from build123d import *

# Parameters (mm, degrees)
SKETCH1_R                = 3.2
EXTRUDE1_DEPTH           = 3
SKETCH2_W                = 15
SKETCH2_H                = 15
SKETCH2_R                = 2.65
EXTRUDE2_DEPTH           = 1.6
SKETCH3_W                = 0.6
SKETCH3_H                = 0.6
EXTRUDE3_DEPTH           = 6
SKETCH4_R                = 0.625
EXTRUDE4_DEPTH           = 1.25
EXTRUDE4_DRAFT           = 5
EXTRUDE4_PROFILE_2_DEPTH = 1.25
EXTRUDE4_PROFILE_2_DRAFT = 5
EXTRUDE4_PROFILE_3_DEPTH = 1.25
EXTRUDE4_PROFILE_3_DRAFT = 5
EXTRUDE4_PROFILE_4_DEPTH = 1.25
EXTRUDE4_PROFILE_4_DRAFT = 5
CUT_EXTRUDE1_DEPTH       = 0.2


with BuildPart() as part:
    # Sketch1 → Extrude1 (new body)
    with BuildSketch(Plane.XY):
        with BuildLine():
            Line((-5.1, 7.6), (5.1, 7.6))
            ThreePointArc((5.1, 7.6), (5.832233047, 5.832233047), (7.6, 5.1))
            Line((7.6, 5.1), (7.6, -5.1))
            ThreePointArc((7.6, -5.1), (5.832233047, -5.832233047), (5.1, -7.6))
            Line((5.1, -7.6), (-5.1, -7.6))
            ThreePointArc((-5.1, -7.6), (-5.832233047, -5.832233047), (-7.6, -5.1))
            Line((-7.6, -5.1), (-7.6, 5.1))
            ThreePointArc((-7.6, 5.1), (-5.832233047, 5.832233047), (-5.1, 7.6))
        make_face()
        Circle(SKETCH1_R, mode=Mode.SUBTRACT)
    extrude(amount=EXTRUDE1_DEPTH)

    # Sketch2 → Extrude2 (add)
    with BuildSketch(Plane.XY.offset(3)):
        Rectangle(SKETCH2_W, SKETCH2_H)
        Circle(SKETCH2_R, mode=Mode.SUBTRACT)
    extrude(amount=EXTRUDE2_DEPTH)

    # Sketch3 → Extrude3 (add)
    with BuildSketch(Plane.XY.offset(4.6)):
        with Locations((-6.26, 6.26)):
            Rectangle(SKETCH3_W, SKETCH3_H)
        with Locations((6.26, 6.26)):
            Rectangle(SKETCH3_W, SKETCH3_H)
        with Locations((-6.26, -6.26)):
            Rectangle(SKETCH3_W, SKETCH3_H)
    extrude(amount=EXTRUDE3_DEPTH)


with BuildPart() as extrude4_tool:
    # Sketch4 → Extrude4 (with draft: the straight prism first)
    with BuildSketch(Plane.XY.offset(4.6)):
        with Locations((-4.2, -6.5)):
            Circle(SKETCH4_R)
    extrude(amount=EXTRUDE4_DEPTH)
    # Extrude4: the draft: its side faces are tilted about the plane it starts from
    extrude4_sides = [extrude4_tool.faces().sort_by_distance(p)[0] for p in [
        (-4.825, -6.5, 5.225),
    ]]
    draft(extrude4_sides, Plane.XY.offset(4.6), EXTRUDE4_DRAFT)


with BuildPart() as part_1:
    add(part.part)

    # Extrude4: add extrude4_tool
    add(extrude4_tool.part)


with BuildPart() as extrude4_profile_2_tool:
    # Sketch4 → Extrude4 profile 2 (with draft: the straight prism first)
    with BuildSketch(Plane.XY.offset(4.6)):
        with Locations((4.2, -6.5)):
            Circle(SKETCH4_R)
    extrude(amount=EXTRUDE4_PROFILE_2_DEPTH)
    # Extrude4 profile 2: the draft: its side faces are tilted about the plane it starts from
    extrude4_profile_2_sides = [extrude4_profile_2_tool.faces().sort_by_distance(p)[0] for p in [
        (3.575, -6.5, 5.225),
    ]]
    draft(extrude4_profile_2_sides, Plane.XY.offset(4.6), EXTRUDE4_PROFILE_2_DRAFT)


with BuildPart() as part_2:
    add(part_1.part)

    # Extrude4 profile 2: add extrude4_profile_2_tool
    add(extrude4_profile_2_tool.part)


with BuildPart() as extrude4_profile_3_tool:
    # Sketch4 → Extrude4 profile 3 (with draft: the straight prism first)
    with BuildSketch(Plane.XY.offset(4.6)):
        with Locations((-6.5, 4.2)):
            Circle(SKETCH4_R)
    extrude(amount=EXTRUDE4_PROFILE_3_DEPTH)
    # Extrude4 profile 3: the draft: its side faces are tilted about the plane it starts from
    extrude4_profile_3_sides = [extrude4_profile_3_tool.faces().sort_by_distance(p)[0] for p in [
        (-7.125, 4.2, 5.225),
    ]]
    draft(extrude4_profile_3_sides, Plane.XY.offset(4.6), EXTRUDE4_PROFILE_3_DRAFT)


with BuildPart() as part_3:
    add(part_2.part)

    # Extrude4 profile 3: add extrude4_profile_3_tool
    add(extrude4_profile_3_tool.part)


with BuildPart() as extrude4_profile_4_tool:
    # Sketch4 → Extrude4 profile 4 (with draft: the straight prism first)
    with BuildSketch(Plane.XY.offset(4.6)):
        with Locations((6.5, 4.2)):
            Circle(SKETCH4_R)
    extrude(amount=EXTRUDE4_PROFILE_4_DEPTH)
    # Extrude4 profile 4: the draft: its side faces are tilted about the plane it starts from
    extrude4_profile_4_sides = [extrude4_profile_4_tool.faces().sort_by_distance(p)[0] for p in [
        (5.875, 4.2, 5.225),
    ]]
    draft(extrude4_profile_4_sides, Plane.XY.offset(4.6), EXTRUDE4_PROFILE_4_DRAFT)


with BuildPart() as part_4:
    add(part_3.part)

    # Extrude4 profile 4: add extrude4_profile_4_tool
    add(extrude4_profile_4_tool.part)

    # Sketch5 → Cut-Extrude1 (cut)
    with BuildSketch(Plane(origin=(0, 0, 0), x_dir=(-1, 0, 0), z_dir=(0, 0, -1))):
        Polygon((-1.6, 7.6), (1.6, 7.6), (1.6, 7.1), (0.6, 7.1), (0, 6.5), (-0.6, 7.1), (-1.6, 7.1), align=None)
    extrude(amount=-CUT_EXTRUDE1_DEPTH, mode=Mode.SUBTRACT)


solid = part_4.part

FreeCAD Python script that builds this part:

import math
import FreeCAD as App
import Part
import Sketcher


def faces_at(feature, points):
    """Names of the faces that lie closest to the given points."""
    faces = feature.Shape.Faces
    near = lambda p: min(range(len(faces)), key=lambda i: faces[i].distToShape(Part.Vertex(*p))[0])
    return sorted({f"Face{near(p) + 1}" for p in points})

doc = App.newDocument("Part")
body = doc.addObject("PartDesign::Body", "Body")

sketch1 = body.newObject("Sketcher::SketchObject", "Sketch")
sketch1.AttachmentSupport = (doc.getObject("XY_Plane"), [""])
sketch1.MapMode = "FlatFace"
sketch1.addGeometry([
    Part.LineSegment(App.Vector(5.1, 7.6, 0), App.Vector(-5.1, 7.6, 0)),
    Part.ArcOfCircle(Part.Circle(App.Vector(-7.6, 7.6, 0), App.Vector(0, 0, 1), 2.5), math.radians(-90), math.radians(0)),
    Part.LineSegment(App.Vector(-7.6, 5.1, 0), App.Vector(-7.6, -5.1, 0)),
    Part.ArcOfCircle(Part.Circle(App.Vector(-7.6, -7.6, 0), App.Vector(0, 0, 1), 2.5), math.radians(0), math.radians(90)),
    Part.LineSegment(App.Vector(-5.1, -7.6, 0), App.Vector(5.1, -7.6, 0)),
    Part.ArcOfCircle(Part.Circle(App.Vector(7.6, -7.6, 0), App.Vector(0, 0, 1), 2.5), math.radians(90), math.radians(180)),
    Part.LineSegment(App.Vector(7.6, -5.1, 0), App.Vector(7.6, 5.1, 0)),
    Part.ArcOfCircle(Part.Circle(App.Vector(7.6, 7.6, 0), App.Vector(0, 0, 1), 2.5), math.radians(180), math.radians(270)),
    Part.Circle(App.Vector(0, 0, 0), App.Vector(0, 0, 1), 3.2),
], False)
sketch1.addConstraint([
    Sketcher.Constraint("Coincident", 0, 2, 1, 2),
    Sketcher.Constraint("Coincident", 1, 1, 2, 1),
    Sketcher.Constraint("Coincident", 2, 2, 3, 2),
    Sketcher.Constraint("Coincident", 3, 1, 4, 1),
    Sketcher.Constraint("Coincident", 4, 2, 5, 2),
    Sketcher.Constraint("Coincident", 5, 1, 6, 1),
    Sketcher.Constraint("Coincident", 6, 2, 7, 2),
    Sketcher.Constraint("Coincident", 7, 1, 0, 1),
    Sketcher.Constraint("Horizontal", 0),
    Sketcher.Constraint("Vertical", 2),
    Sketcher.Constraint("Horizontal", 4),
    Sketcher.Constraint("Vertical", 6),
    Sketcher.Constraint("Coincident", 8, 3, -1, 1),
    Sketcher.Constraint("Equal", 1, 3),
    Sketcher.Constraint("Equal", 3, 5),
    Sketcher.Constraint("Equal", 5, 7),
    Sketcher.Constraint("Symmetric", 1, 3, 5, 3, -1, 1),
    Sketcher.Constraint("Symmetric", 3, 3, 7, 3, -1, 1),
    Sketcher.Constraint("Symmetric", 3, 3, 5, 3, -2),
    Sketcher.Constraint("Horizontal", 7, 3, 0, 2),
    Sketcher.Constraint("Horizontal", 5, 3, 3, 1),
    Sketcher.Constraint("Vertical", 3, 3, 1, 1),
    Sketcher.Constraint("Vertical", 7, 3, 5, 1),
    Sketcher.Constraint("Equal", 4, 2),
    Sketcher.Constraint("Diameter", 8, 6.4),
    Sketcher.Constraint("Radius", 1, 2.5),
    Sketcher.Constraint("DistanceX", 0, 2, 0, 1, 10.2),
])
pad1 = body.newObject("PartDesign::Pad", "Pad")
pad1.Profile = sketch1
pad1.Length = 3

sketch2 = body.newObject("Sketcher::SketchObject", "Sketch001")
sketch2.AttachmentSupport = (doc.getObject("XY_Plane"), [""])
sketch2.MapMode = "FlatFace"
sketch2.AttachmentOffset = App.Placement(App.Vector(0, 0, 3), App.Rotation())
sketch2.addGeometry([
    Part.LineSegment(App.Vector(-7.5, 7.5, 0), App.Vector(-7.5, -7.5, 0)),
    Part.LineSegment(App.Vector(-7.5, -7.5, 0), App.Vector(7.5, -7.5, 0)),
    Part.LineSegment(App.Vector(7.5, -7.5, 0), App.Vector(7.5, 7.5, 0)),
    Part.LineSegment(App.Vector(7.5, 7.5, 0), App.Vector(-7.5, 7.5, 0)),
    Part.Circle(App.Vector(0, 0, 0), App.Vector(0, 0, 1), 2.6),
], False)
sketch2.addConstraint([
    Sketcher.Constraint("Coincident", 0, 2, 1, 1),
    Sketcher.Constraint("Coincident", 1, 2, 2, 1),
    Sketcher.Constraint("Coincident", 2, 2, 3, 1),
    Sketcher.Constraint("Coincident", 3, 2, 0, 1),
    Sketcher.Constraint("Vertical", 0),
    Sketcher.Constraint("Horizontal", 1),
    Sketcher.Constraint("Vertical", 2),
    Sketcher.Constraint("Horizontal", 3),
    Sketcher.Constraint("Coincident", 4, 3, -1, 1),
    Sketcher.Constraint("Symmetric", 0, 2, 2, 2, -1, 1),
    Sketcher.Constraint("Equal", 3, 0),
    Sketcher.Constraint("Diameter", 4, 5.3),
    Sketcher.Constraint("DistanceX", 1, 1, 1, 2, 15.0),
])
pad2 = body.newObject("PartDesign::Pad", "Pad001")
pad2.Profile = sketch2
pad2.Length = 1.6

sketch3 = body.newObject("Sketcher::SketchObject", "Sketch002")
sketch3.AttachmentSupport = (doc.getObject("XY_Plane"), [""])
sketch3.MapMode = "FlatFace"
sketch3.AttachmentOffset = App.Placement(App.Vector(0, 0, 4.6), App.Rotation())
sketch3.addGeometry([
    Part.LineSegment(App.Vector(-6.6, 6.6, 0), App.Vector(-6.6, 6, 0)),
    Part.LineSegment(App.Vector(-6.6, 6, 0), App.Vector(-6, 6, 0)),
    Part.LineSegment(App.Vector(-6, 6, 0), App.Vector(-6, 6.6, 0)),
    Part.LineSegment(App.Vector(-6, 6.6, 0), App.Vector(-6.6, 6.6, 0)),
    Part.LineSegment(App.Vector(6, 6.6, 0), App.Vector(6, 6, 0)),
    Part.LineSegment(App.Vector(6, 6, 0), App.Vector(6.6, 6, 0)),
    Part.LineSegment(App.Vector(6.6, 6, 0), App.Vector(6.6, 6.6, 0)),
    Part.LineSegment(App.Vector(6.6, 6.6, 0), App.Vector(6, 6.6, 0)),
    Part.LineSegment(App.Vector(-6.6, -6, 0), App.Vector(-6.6, -6.6, 0)),
    Part.LineSegment(App.Vector(-6.6, -6.6, 0), App.Vector(-6, -6.6, 0)),
    Part.LineSegment(App.Vector(-6, -6.6, 0), App.Vector(-6, -6, 0)),
    Part.LineSegment(App.Vector(-6, -6, 0), App.Vector(-6.6, -6, 0)),
], False)
sketch3.addConstraint([
    Sketcher.Constraint("Coincident", 0, 2, 1, 1),
    Sketcher.Constraint("Coincident", 1, 2, 2, 1),
    Sketcher.Constraint("Coincident", 2, 2, 3, 1),
    Sketcher.Constraint("Coincident", 3, 2, 0, 1),
    Sketcher.Constraint("Coincident", 4, 2, 5, 1),
    Sketcher.Constraint("Coincident", 5, 2, 6, 1),
    Sketcher.Constraint("Coincident", 6, 2, 7, 1),
    Sketcher.Constraint("Coincident", 7, 2, 4, 1),
    Sketcher.Constraint("Coincident", 8, 2, 9, 1),
    Sketcher.Constraint("Coincident", 9, 2, 10, 1),
    Sketcher.Constraint("Coincident", 10, 2, 11, 1),
    Sketcher.Constraint("Coincident", 11, 2, 8, 1),
    Sketcher.Constraint("Vertical", 0),
    Sketcher.Constraint("Horizontal", 1),
    Sketcher.Constraint("Vertical", 2),
    Sketcher.Constraint("Horizontal", 3),
    Sketcher.Constraint("Vertical", 4),
    Sketcher.Constraint("Horizontal", 5),
    Sketcher.Constraint("Vertical", 6),
    Sketcher.Constraint("Horizontal", 7),
    Sketcher.Constraint("Vertical", 8),
    Sketcher.Constraint("Horizontal", 9),
    Sketcher.Constraint("Vertical", 10),
    Sketcher.Constraint("Horizontal", 11),
    Sketcher.Constraint("Symmetric", 6, 2, 8, 2, -1, 1),
    Sketcher.Constraint("Symmetric", 4, 2, 10, 2, -1, 1),
    Sketcher.Constraint("Symmetric", 1, 2, 4, 2, -2),
    Sketcher.Constraint("Symmetric", 3, 2, 6, 2, -2),
    Sketcher.Constraint("Equal", 11, 0),
    Sketcher.Constraint("DistanceX", 1, 1, 1, 2, 0.6),
    Sketcher.Constraint("DistanceX", 0, 2, -1, 1, 6.56),
    Sketcher.Constraint("DistanceY", -1, 1, 0, 2, 5.96),
])
pad3 = body.newObject("PartDesign::Pad", "Pad002")
pad3.Profile = sketch3
pad3.Length = 6
body2 = doc.addObject("PartDesign::Body", "Body001")

sketch4 = body2.newObject("Sketcher::SketchObject", "Sketch003")
sketch4.AttachmentSupport = (doc.getObject("XY_Plane001"), [""])
sketch4.MapMode = "FlatFace"
sketch4.AttachmentOffset = App.Placement(App.Vector(0, 0, 4.6), App.Rotation())
sketch4.addGeometry(Part.Circle(App.Vector(-4.2, -6.5, 0), App.Vector(0, 0, 1), 0.6), False)
sketch4.addConstraint([
    Sketcher.Constraint("Diameter", 0, 1.25),
    Sketcher.Constraint("DistanceX", 0, 3, -1, 1, 4.2),
    Sketcher.Constraint("DistanceY", 0, 3, -1, 1, 6.5),
])
pad4 = body2.newObject("PartDesign::Pad", "Pad003")
pad4.Profile = sketch4
pad4.Length = 1.25
doc.recompute()

datumplane = body2.newObject("PartDesign::Plane", "DatumPlane")
datumplane.AttachmentSupport = (doc.getObject("XY_Plane001"), [""])
datumplane.MapMode = "FlatFace"
datumplane.AttachmentOffset = App.Placement(App.Vector(0, 0, 4.6), App.Rotation())
draft = body2.newObject("PartDesign::Draft", "Draft")
draft.Base = (pad4, faces_at(pad4, [(-4.825, -6.5, 5.225)]))
draft.NeutralPlane = (datumplane, [""])
draft.Angle = 5
draft.Reversed = False
doc.recompute()

boolean = body.newObject("PartDesign::Boolean", "Boolean")
boolean.Type = "Fuse"
boolean.addObjects([body2])
body3 = doc.addObject("PartDesign::Body", "Body002")

sketch5 = body3.newObject("Sketcher::SketchObject", "Sketch004")
sketch5.AttachmentSupport = (doc.getObject("XY_Plane002"), [""])
sketch5.MapMode = "FlatFace"
sketch5.AttachmentOffset = App.Placement(App.Vector(0, 0, 4.6), App.Rotation())
sketch5.addGeometry(Part.Circle(App.Vector(4.2, -6.5, 0), App.Vector(0, 0, 1), 0.6), False)
sketch5.addConstraint([
    Sketcher.Constraint("Diameter", 0, 1.25),
    Sketcher.Constraint("DistanceX", -1, 1, 0, 3, 4.2),
    Sketcher.Constraint("DistanceY", 0, 3, -1, 1, 6.5),
])
pad5 = body3.newObject("PartDesign::Pad", "Pad004")
pad5.Profile = sketch5
pad5.Length = 1.25
doc.recompute()

datumplane2 = body3.newObject("PartDesign::Plane", "DatumPlane001")
datumplane2.AttachmentSupport = (doc.getObject("XY_Plane002"), [""])
datumplane2.MapMode = "FlatFace"
datumplane2.AttachmentOffset = App.Placement(App.Vector(0, 0, 4.6), App.Rotation())
draft2 = body3.newObject("PartDesign::Draft", "Draft001")
draft2.Base = (pad5, faces_at(pad5, [(3.575, -6.5, 5.225)]))
draft2.NeutralPlane = (datumplane2, [""])
draft2.Angle = 5
draft2.Reversed = False
doc.recompute()

boolean2 = body.newObject("PartDesign::Boolean", "Boolean001")
boolean2.Type = "Fuse"
boolean2.addObjects([body3])
body4 = doc.addObject("PartDesign::Body", "Body003")

sketch6 = body4.newObject("Sketcher::SketchObject", "Sketch005")
sketch6.AttachmentSupport = (doc.getObject("XY_Plane003"), [""])
sketch6.MapMode = "FlatFace"
sketch6.AttachmentOffset = App.Placement(App.Vector(0, 0, 4.6), App.Rotation())
sketch6.addGeometry(Part.Circle(App.Vector(-6.5, 4.2, 0), App.Vector(0, 0, 1), 0.6), False)
sketch6.addConstraint([
    Sketcher.Constraint("Diameter", 0, 1.25),
    Sketcher.Constraint("DistanceX", 0, 3, -1, 1, 6.5),
    Sketcher.Constraint("DistanceY", -1, 1, 0, 3, 4.2),
])
pad6 = body4.newObject("PartDesign::Pad", "Pad005")
pad6.Profile = sketch6
pad6.Length = 1.25
doc.recompute()

datumplane3 = body4.newObject("PartDesign::Plane", "DatumPlane002")
datumplane3.AttachmentSupport = (doc.getObject("XY_Plane003"), [""])
datumplane3.MapMode = "FlatFace"
datumplane3.AttachmentOffset = App.Placement(App.Vector(0, 0, 4.6), App.Rotation())
draft3 = body4.newObject("PartDesign::Draft", "Draft002")
draft3.Base = (pad6, faces_at(pad6, [(-7.125, 4.2, 5.225)]))
draft3.NeutralPlane = (datumplane3, [""])
draft3.Angle = 5
draft3.Reversed = False
doc.recompute()

boolean3 = body.newObject("PartDesign::Boolean", "Boolean002")
boolean3.Type = "Fuse"
boolean3.addObjects([body4])
body5 = doc.addObject("PartDesign::Body", "Body004")

sketch7 = body5.newObject("Sketcher::SketchObject", "Sketch006")
sketch7.AttachmentSupport = (doc.getObject("XY_Plane004"), [""])
sketch7.MapMode = "FlatFace"
sketch7.AttachmentOffset = App.Placement(App.Vector(0, 0, 4.6), App.Rotation())
sketch7.addGeometry(Part.Circle(App.Vector(6.5, 4.2, 0), App.Vector(0, 0, 1), 0.6), False)
sketch7.addConstraint([
    Sketcher.Constraint("Diameter", 0, 1.25),
    Sketcher.Constraint("DistanceX", -1, 1, 0, 3, 6.5),
    Sketcher.Constraint("DistanceY", -1, 1, 0, 3, 4.2),
])
pad7 = body5.newObject("PartDesign::Pad", "Pad006")
pad7.Profile = sketch7
pad7.Length = 1.25
doc.recompute()

datumplane4 = body5.newObject("PartDesign::Plane", "DatumPlane003")
datumplane4.AttachmentSupport = (doc.getObject("XY_Plane004"), [""])
datumplane4.MapMode = "FlatFace"
datumplane4.AttachmentOffset = App.Placement(App.Vector(0, 0, 4.6), App.Rotation())
draft4 = body5.newObject("PartDesign::Draft", "Draft003")
draft4.Base = (pad7, faces_at(pad7, [(5.875, 4.2, 5.225)]))
draft4.NeutralPlane = (datumplane4, [""])
draft4.Angle = 5
draft4.Reversed = False
doc.recompute()

boolean4 = body.newObject("PartDesign::Boolean", "Boolean003")
boolean4.Type = "Fuse"
boolean4.addObjects([body5])

sketch8 = body.newObject("Sketcher::SketchObject", "Sketch007")
sketch8.AttachmentSupport = (doc.getObject("XY_Plane"), [""])
sketch8.MapMode = "FlatFace"
sketch8.addGeometry([
    Part.LineSegment(App.Vector(-1.6, 7.6, 0), App.Vector(1.6, 7.6, 0)),
    Part.LineSegment(App.Vector(1.6, 7.6, 0), App.Vector(1.6, 7.1, 0)),
    Part.LineSegment(App.Vector(1.6, 7.1, 0), App.Vector(0.6, 7.1, 0)),
    Part.LineSegment(App.Vector(0.6, 7.1, 0), App.Vector(0, 6.5, 0)),
    Part.LineSegment(App.Vector(0, 6.5, 0), App.Vector(-0.6, 7.1, 0)),
    Part.LineSegment(App.Vector(-0.6, 7.1, 0), App.Vector(-1.6, 7.1, 0)),
    Part.LineSegment(App.Vector(-1.6, 7.1, 0), App.Vector(-1.6, 7.6, 0)),
], False)
sketch8.addConstraint([
    Sketcher.Constraint("Coincident", 0, 2, 1, 1),
    Sketcher.Constraint("Coincident", 1, 2, 2, 1),
    Sketcher.Constraint("Coincident", 2, 2, 3, 1),
    Sketcher.Constraint("Coincident", 3, 2, 4, 1),
    Sketcher.Constraint("Coincident", 4, 2, 5, 1),
    Sketcher.Constraint("Coincident", 5, 2, 6, 1),
    Sketcher.Constraint("Coincident", 6, 2, 0, 1),
    Sketcher.Constraint("Horizontal", 0),
    Sketcher.Constraint("Vertical", 1),
    Sketcher.Constraint("Horizontal", 2),
    Sketcher.Constraint("Horizontal", 5),
    Sketcher.Constraint("Vertical", 6),
    Sketcher.Constraint("Symmetric", 2, 2, 4, 2, -2),
    Sketcher.Constraint("PointOnObject", 3, 2, -2),
    Sketcher.Constraint("Perpendicular", 3, 4),
    Sketcher.Constraint("Equal", 2, 5),
    Sketcher.Constraint("DistanceX", 2, 2, 2, 1, 1.0),
    Sketcher.Constraint("DistanceX", 0, 1, 0, 2, 3.2),
    Sketcher.Constraint("DistanceY", 1, 2, 1, 1, 0.5),
    Sketcher.Constraint("DistanceY", -1, 1, 0, 2, 7.6),
])
pocket1 = body.newObject("PartDesign::Pocket", "Pocket")
pocket1.Profile = sketch8
pocket1.Length = 0.2
pocket1.Reversed = True

doc.recompute()
